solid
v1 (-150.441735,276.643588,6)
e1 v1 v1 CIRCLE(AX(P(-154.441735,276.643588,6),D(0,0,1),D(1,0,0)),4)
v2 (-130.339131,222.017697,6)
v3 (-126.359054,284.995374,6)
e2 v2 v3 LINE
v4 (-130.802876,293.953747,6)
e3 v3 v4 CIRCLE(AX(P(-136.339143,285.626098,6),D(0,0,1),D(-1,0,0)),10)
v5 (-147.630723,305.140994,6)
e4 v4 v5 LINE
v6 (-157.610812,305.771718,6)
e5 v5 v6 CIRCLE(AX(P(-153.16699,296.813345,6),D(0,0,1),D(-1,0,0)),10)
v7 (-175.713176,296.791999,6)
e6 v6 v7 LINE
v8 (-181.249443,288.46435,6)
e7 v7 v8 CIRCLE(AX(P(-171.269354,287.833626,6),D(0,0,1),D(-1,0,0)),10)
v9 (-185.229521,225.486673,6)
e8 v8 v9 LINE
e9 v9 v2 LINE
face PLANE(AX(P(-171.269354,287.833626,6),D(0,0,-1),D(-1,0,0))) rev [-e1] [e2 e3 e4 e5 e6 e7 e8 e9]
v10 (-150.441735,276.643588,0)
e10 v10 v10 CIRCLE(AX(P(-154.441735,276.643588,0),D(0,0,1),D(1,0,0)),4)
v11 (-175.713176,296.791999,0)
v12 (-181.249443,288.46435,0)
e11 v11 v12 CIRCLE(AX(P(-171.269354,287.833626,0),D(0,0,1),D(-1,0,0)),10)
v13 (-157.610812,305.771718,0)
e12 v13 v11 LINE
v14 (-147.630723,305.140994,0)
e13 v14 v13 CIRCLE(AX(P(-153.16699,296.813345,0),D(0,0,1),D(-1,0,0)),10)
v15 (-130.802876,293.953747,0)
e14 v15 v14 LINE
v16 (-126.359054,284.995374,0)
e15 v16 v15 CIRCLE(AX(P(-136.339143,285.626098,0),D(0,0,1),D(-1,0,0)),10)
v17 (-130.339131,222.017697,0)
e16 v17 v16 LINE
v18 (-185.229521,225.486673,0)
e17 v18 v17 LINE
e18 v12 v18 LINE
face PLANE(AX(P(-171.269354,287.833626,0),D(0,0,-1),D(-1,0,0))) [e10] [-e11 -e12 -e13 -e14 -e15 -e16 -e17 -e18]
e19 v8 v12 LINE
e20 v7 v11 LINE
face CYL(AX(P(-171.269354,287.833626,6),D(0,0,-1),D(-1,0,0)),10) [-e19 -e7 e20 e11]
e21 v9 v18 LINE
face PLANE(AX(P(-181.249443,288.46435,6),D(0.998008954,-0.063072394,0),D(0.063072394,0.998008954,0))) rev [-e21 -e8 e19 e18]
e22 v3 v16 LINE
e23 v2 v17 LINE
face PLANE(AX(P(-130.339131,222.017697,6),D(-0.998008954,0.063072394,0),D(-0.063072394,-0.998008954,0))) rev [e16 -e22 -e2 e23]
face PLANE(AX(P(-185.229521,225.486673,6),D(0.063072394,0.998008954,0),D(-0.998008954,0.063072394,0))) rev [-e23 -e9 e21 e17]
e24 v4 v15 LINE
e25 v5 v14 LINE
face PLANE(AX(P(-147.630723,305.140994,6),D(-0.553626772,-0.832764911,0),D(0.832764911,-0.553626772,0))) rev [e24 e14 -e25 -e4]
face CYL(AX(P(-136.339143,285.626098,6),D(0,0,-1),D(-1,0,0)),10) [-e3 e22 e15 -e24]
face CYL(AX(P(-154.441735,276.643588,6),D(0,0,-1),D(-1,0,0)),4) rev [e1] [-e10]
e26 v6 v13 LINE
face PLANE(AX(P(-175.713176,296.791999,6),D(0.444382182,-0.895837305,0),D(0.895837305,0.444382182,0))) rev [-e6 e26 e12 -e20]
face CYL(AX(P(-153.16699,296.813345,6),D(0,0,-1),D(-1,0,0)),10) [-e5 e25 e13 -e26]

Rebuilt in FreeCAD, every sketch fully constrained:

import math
import FreeCAD as App
import Part
import Sketcher
Q = App.Units.Quantity

doc = App.newDocument("Part")
body = doc.addObject("PartDesign::Body", "Body")

# Sketch on XY plane
sketch1 = doc.addObject("Sketcher::SketchObject", "Sketch")
body.addObject(sketch1)
sketch1.AttachmentSupport = (doc.XY_Plane, [""])
sketch1.MapMode = "FlatFace"
sketch1.addGeometry([
    Part.LineSegment(App.Vector(-157.6, 305.8, 0), App.Vector(-175.7, 296.8, 0)),  # 0
    Part.ArcOfCircle(Part.Circle(App.Vector(-171.3, 287.8, 0), App.Vector(0, 0, 1), 10), math.radians(116), math.radians(176)),  # 1
    Part.LineSegment(App.Vector(-181.2, 288.5, 0), App.Vector(-185.2, 225.5, 0)),  # 2
    Part.LineSegment(App.Vector(-185.2, 225.5, 0), App.Vector(-130.3, 222, 0)),  # 3
    Part.LineSegment(App.Vector(-130.3, 222, 0), App.Vector(-126.4, 285, 0)),  # 4
    Part.ArcOfCircle(Part.Circle(App.Vector(-136.3, 285.6, 0), App.Vector(0, 0, 1), 10), math.radians(-4), math.radians(56)),  # 5
    Part.LineSegment(App.Vector(-130.8, 294, 0), App.Vector(-147.6, 305.1, 0)),  # 6
    Part.ArcOfCircle(Part.Circle(App.Vector(-153.2, 296.8, 0), App.Vector(0, 0, 1), 10), math.radians(56), math.radians(116)),  # 7
    Part.Circle(App.Vector(-154.4, 276.6, 0), App.Vector(0, 0, 1), 4),  # 8
], False)
sketch1.addConstraint([
    Sketcher.Constraint("Tangent", 0, 2, 1, 1),
    Sketcher.Constraint("Tangent", 1, 2, 2, 1),
    Sketcher.Constraint("Coincident", 2, 2, 3, 1),
    Sketcher.Constraint("Coincident", 3, 2, 4, 1),
    Sketcher.Constraint("Tangent", 4, 2, 5, 1),
    Sketcher.Constraint("Tangent", 5, 2, 6, 1),
    Sketcher.Constraint("Tangent", 6, 2, 7, 1),
    Sketcher.Constraint("Tangent", 7, 2, 0, 1),
    Sketcher.Constraint("Equal", 1, 5),
    Sketcher.Constraint("Equal", 5, 7),
    Sketcher.Constraint("Perpendicular", 2, 3),
    Sketcher.Constraint("Perpendicular", 3, 4),
    Sketcher.Constraint("Equal", 2, 4),
    Sketcher.Constraint("Equal", 0, 6),
    Sketcher.Constraint("Diameter", 8, Q("8 mm")),
    Sketcher.Constraint("Radius", 1, Q("10 mm")),
    Sketcher.Constraint("DistanceY", -1, 1, 0, 2, Q("296.791999 mm")),
    Sketcher.Constraint("Distance", 0, Q("20.2072 mm")),
    Sketcher.Constraint("DistanceY", -1, 1, 5, 3, Q("285.626098 mm")),
    Sketcher.Constraint("DistanceX", 1, 2, 5, 3, Q("44.9103 mm")),
    Sketcher.Constraint("DistanceY", 3, 2, 5, 3, Q("63.608401 mm")),
    Sketcher.Constraint("DistanceX", 7, 3, -1, 1, Q("153.16699 mm")),
    Sketcher.Constraint("DistanceX", 1, 3, 8, 3, Q("16.827619 mm")),
    Sketcher.Constraint("DistanceY", 8, 3, 1, 3, Q("11.190038 mm")),
])
pad1 = doc.addObject("PartDesign::Pad", "Pad")
body.addObject(pad1)
pad1.Profile = sketch1
pad1.Length = 6

doc.recompute()
